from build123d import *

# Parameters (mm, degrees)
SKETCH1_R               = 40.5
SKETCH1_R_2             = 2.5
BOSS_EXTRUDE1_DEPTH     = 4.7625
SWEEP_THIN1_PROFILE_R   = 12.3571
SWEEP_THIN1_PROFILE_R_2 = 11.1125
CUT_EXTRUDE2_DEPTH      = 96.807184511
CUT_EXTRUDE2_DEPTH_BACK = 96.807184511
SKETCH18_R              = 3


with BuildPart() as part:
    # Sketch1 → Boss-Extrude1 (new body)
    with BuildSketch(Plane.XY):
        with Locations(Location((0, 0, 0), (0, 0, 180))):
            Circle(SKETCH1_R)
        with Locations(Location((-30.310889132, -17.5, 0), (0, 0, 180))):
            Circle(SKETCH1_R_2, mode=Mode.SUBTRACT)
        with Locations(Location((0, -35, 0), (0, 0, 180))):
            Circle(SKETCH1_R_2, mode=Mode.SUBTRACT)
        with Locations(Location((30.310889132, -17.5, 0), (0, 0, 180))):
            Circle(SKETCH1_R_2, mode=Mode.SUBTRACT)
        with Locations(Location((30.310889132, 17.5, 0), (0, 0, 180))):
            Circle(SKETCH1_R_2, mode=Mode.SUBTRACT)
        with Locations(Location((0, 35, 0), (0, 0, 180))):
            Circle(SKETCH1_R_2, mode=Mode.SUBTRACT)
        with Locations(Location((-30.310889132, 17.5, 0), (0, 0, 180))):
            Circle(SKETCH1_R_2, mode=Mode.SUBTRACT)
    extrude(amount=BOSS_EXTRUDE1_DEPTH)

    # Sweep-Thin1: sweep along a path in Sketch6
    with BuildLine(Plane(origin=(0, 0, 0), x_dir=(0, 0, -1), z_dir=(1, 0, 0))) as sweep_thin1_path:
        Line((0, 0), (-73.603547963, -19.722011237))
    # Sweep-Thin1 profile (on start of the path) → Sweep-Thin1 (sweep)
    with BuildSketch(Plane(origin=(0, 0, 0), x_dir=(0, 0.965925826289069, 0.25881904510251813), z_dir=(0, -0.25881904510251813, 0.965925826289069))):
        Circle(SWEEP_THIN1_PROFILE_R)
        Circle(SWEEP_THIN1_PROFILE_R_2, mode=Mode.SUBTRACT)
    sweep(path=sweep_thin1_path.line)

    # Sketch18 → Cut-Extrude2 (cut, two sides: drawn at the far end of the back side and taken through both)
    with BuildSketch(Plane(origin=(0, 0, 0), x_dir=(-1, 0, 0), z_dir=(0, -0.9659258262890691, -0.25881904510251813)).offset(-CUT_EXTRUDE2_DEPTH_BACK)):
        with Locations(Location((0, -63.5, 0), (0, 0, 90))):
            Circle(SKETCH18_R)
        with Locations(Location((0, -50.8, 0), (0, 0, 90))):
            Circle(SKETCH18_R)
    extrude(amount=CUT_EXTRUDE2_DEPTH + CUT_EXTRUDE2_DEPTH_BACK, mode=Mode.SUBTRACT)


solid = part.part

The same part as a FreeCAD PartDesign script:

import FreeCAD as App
import Part
import Sketcher

V = App.Vector
Q = App.Units.Quantity

doc = App.newDocument("Part")
body = doc.addObject("PartDesign::Body", "Body")

# Sketch on XY plane
sketch1 = body.newObject("Sketcher::SketchObject", "Sketch")
sketch1.AttachmentSupport = (doc.getObject("XY_Plane"), [""])
sketch1.MapMode = "FlatFace"
sketch1.addGeometry([
    Part.Circle(V(0, 0, 0), V(0, 0, 1), 40.5),  # 0
    Part.Circle(V(30.3, 17.5, 0), V(0, 0, 1), 2.5),  # 1
    Part.Circle(V(0, 35, 0), V(0, 0, 1), 2.5),  # 2
    Part.Circle(V(-30.3, 17.5, 0), V(0, 0, 1), 2.5),  # 3
    Part.Circle(V(30.3, -17.5, 0), V(0, 0, 1), 2.5),  # 4
    Part.Circle(V(-30.3, -17.5, 0), V(0, 0, 1), 2.5),  # 5
    Part.Circle(V(0, -35, 0), V(0, 0, 1), 2.5),  # 6
], False)
sketch1.addConstraint([
    Sketcher.Constraint("Coincident", 0, 3, -1, 1),
    Sketcher.Constraint("Equal", 1, 2),
    Sketcher.Constraint("Equal", 2, 3),
    Sketcher.Constraint("Equal", 3, 4),
    Sketcher.Constraint("Equal", 4, 5),
    Sketcher.Constraint("Equal", 5, 6),
    Sketcher.Constraint("Symmetric", 3, 3, 4, 3, -1, 1),
    Sketcher.Constraint("Symmetric", 1, 3, 5, 3, -1, 1),
    Sketcher.Constraint("Symmetric", 2, 3, 6, 3, -1, 1),
    Sketcher.Constraint("Symmetric", 1, 3, 3, 3, -2),
    Sketcher.Constraint("PointOnObject", 2, 3, -2),
    Sketcher.Constraint("Diameter", 0, 81.0),
    Sketcher.Constraint("Diameter", 1, 5.0),
    Sketcher.Constraint("DistanceY", -1, 1, 1, 3, 17.5),
    Sketcher.Constraint("DistanceY", -1, 1, 2, 3, 35.0),
    Sketcher.Constraint("DistanceX", -1, 1, 1, 3, 30.310889),
])
pad1 = body.newObject("PartDesign::Pad", "Pad")
pad1.Profile = sketch1
pad1.Length = Q("0.1875 in")

# Sketch on an angled plane
sketch2 = body.newObject("Sketcher::SketchObject", "Sketch001")
sketch2.Placement = App.Placement(V(0, 0, 0), App.Rotation(V(0, 0.965925826, 0.258819045), V(-0.999999999, 0, 0), V(0, -0.258819045, 0.965925826), "ZXY"))
sketch2.addGeometry([
    Part.Circle(V(0, 0, 0), V(0, 0, 1), 12),
    Part.Circle(V(0, 0, 0), V(0, 0, 1), 11),
], False)
sketch2.addConstraint([
    Sketcher.Constraint("Coincident", 0, 3, -1, 1),
    Sketcher.Constraint("Coincident", 1, 3, -1, 1),
    Sketcher.Constraint("Diameter", 0, Q("0.973 in")),
    Sketcher.Constraint("Diameter", 1, Q("0.875 in")),
])

# Sketch on an angled plane
sketch3 = body.newObject("Sketcher::SketchObject", "Sketch002")
sketch3.Placement = App.Placement(V(0, 0, 0), App.Rotation(V(0, 0.258819045, -0.965925826), V(0.999999999, 0, 0), V(0, -0.965925826, -0.258819045), "ZXY"))
sketch3.addGeometry(Part.LineSegment(V(0, 0, 0), V(-76, 0, 0)), False)
sketch3.addConstraint([
    Sketcher.Constraint("Horizontal", 0),
    Sketcher.Constraint("Coincident", 0, 1, -1, 1),
    Sketcher.Constraint("DistanceX", 0, 2, 0, 1, Q("3 in")),
])
doc.recompute()

additivepipe = body.newObject("PartDesign::AdditivePipe", "AdditivePipe")
additivepipe.Profile = sketch2
additivepipe.Spine = (sketch3, ["Edge1"])

# Sketch on an angled plane
sketch4 = body.newObject("Sketcher::SketchObject", "Sketch003")
sketch4.Placement = App.Placement(V(0, 0, 0), App.Rotation(V(-1, 0, 0), V(0, 0.258819045, -0.965925826), V(0, -0.965925826, -0.258819045), "ZXY"))
sketch4.addGeometry([
    Part.Circle(V(0, -63.5, 0), V(0, 0, 1), 3),
    Part.Circle(V(0, -50.8, 0), V(0, 0, 1), 3),
], False)
sketch4.addConstraint([
    Sketcher.Constraint("Equal", 0, 1),
    Sketcher.Constraint("PointOnObject", 0, 3, -2),
    Sketcher.Constraint("PointOnObject", 1, 3, -2),
    Sketcher.Constraint("DistanceY", 1, 3, -1, 1, Q("2 in")),
    Sketcher.Constraint("DistanceY", 0, 3, -1, 1, Q("2.5 in")),
    Sketcher.Constraint("Diameter", 0, 6.0),
])
pocket1 = body.newObject("PartDesign::Pocket", "Pocket")
pocket1.Profile = sketch4
pocket1.Type = "ThroughAll"
pocket1.Midplane = True

doc.recompute()
